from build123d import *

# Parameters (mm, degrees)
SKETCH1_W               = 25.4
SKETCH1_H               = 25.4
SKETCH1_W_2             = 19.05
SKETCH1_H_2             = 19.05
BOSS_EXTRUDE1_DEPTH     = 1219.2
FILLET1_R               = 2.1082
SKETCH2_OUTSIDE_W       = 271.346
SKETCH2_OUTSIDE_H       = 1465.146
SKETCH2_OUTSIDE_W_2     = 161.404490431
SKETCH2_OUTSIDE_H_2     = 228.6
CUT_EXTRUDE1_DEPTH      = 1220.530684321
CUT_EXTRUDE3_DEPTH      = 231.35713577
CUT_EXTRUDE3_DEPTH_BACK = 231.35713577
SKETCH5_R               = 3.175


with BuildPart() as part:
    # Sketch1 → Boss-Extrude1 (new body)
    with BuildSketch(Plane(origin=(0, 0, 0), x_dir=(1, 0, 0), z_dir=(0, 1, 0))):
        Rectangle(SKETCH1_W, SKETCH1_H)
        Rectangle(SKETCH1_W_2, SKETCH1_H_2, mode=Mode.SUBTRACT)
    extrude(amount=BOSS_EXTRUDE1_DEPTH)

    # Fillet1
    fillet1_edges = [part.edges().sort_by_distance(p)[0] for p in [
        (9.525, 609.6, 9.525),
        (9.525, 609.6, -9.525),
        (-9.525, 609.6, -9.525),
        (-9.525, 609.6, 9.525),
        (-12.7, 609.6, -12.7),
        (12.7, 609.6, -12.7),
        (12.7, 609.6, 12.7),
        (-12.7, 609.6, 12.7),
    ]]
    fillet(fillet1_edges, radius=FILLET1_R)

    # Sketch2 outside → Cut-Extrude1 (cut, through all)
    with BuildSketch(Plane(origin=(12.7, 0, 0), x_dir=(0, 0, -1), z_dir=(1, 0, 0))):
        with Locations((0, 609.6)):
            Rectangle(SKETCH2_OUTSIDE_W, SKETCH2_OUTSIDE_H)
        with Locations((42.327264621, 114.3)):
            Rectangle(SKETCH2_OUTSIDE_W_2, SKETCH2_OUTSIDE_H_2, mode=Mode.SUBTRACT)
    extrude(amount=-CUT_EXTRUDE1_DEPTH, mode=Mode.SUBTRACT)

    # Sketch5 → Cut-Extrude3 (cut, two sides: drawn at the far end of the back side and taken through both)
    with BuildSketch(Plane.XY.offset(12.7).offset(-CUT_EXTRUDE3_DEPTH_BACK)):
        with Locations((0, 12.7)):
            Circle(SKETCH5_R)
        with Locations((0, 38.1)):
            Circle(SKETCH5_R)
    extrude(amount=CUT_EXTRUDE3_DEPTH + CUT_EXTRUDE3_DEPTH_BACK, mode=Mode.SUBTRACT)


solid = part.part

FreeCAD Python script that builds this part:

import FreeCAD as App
import Part
import Sketcher
from FreeCAD import Vector
Q = App.Units.Quantity


def edges_at(feature, points):
    """Names of the edges that pass closest to the given points."""
    edges = feature.Shape.Edges
    near = lambda p: min(range(len(edges)), key=lambda i: edges[i].distToShape(Part.Vertex(*p))[0])
    return sorted({f"Edge{near(p) + 1}" for p in points})

doc = App.newDocument("Part")
params = doc.addObject("Spreadsheet::Sheet", "Params")
for row, (alias, value) in enumerate([
    ("sketch1_width", "1 in"),
    ("sketch1_width2", "0.75 in"),
    ("pad1_length", "48 in"),
    ("fillet_radius", "0.083 in"),
    ("sketch2_width", "9 in"),
    ("sketch3_diameter", "0.25 in"),
], start=1):
    params.set(f"A{row}", alias)
    params.set(f"B{row}", "=" + value)
    params.setAlias(f"B{row}", alias)

body = doc.addObject("PartDesign::Body", "Body")

# Sketch on XZ plane
sketch1 = doc.addObject("Sketcher::SketchObject", "Sketch")
body.addObject(sketch1)
sketch1.AttachmentSupport = (doc.XZ_Plane, [""])
sketch1.MapMode = "FlatFace"
sketch1.addGeometry([
    Part.LineSegment(Vector(-13, -13, 0), Vector(-13, 13, 0)),  # 0
    Part.LineSegment(Vector(-13, 13, 0), Vector(13, 13, 0)),  # 1
    Part.LineSegment(Vector(13, 13, 0), Vector(13, -13, 0)),  # 2
    Part.LineSegment(Vector(13, -13, 0), Vector(-13, -13, 0)),  # 3
    Part.LineSegment(Vector(10, 10, 0), Vector(-10, 10, 0)),  # 4
    Part.LineSegment(Vector(-10, 10, 0), Vector(-10, -10, 0)),  # 5
    Part.LineSegment(Vector(-10, -10, 0), Vector(10, -10, 0)),  # 6
    Part.LineSegment(Vector(10, -10, 0), Vector(10, 10, 0)),  # 7
], False)
sketch1.addConstraint([
    Sketcher.Constraint("Coincident", 0, 2, 1, 1),
    Sketcher.Constraint("Coincident", 1, 2, 2, 1),
    Sketcher.Constraint("Coincident", 2, 2, 3, 1),
    Sketcher.Constraint("Coincident", 3, 2, 0, 1),
    Sketcher.Constraint("Coincident", 4, 2, 5, 1),
    Sketcher.Constraint("Coincident", 5, 2, 6, 1),
    Sketcher.Constraint("Coincident", 6, 2, 7, 1),
    Sketcher.Constraint("Coincident", 7, 2, 4, 1),
    Sketcher.Constraint("Vertical", 0),
    Sketcher.Constraint("Horizontal", 1),
    Sketcher.Constraint("Vertical", 2),
    Sketcher.Constraint("Horizontal", 3),
    Sketcher.Constraint("Horizontal", 4),
    Sketcher.Constraint("Vertical", 5),
    Sketcher.Constraint("Horizontal", 6),
    Sketcher.Constraint("Vertical", 7),
    Sketcher.Constraint("Symmetric", 0, 2, 2, 2, -1, 1),
    Sketcher.Constraint("Symmetric", 4, 2, 6, 2, -1, 1),
    Sketcher.Constraint("Equal", 3, 0),
    Sketcher.Constraint("Equal", 6, 5),
    Sketcher.Constraint("DistanceX", 1, 1, 1, 2, Q("1 in")),
    Sketcher.Constraint("DistanceX", 4, 2, 4, 1, Q("0.75 in")),
])
sketch1.setExpression("Constraints[20]", "Params.sketch1_width")
sketch1.setExpression("Constraints[21]", "Params.sketch1_width2")
pad1 = doc.addObject("PartDesign::Pad", "Pad")
body.addObject(pad1)
pad1.Profile = sketch1
pad1.setExpression("Length", "Params.pad1_length")
pad1.Reversed = True
doc.recompute()

fillet = doc.addObject("PartDesign::Fillet", "Fillet")
body.addObject(fillet)
fillet.Base = (pad1, edges_at(pad1, [
    (9.525, 609.6, 9.525),
    (9.525, 609.6, -9.525),
    (-9.525, 609.6, -9.525),
    (-9.525, 609.6, 9.525),
    (-12.7, 609.6, -12.7),
    (12.7, 609.6, -12.7),
    (12.7, 609.6, 12.7),
    (-12.7, 609.6, 12.7),
]))
fillet.setExpression("Radius", "Params.fillet_radius")

# Sketch on YZ plane
sketch2 = doc.addObject("Sketcher::SketchObject", "Sketch001")
body.addObject(sketch2)
sketch2.AttachmentSupport = (doc.YZ_Plane, [""])
sketch2.MapMode = "FlatFace"
sketch2.AttachmentOffset = App.Placement(Vector(0, 0, 0.5 * 25.4), App.Rotation())
sketch2.addGeometry([
    Part.LineSegment(Vector(1342, 136, 0), Vector(-123, 136, 0)),  # 0
    Part.LineSegment(Vector(-123, 136, 0), Vector(-123, -136, 0)),  # 1
    Part.LineSegment(Vector(-123, -136, 0), Vector(1342, -136, 0)),  # 2
    Part.LineSegment(Vector(1342, -136, 0), Vector(1342, 136, 0)),  # 3
    Part.LineSegment(Vector(0, -123, 0), Vector(0, 38, 0)),  # 4
    Part.LineSegment(Vector(0, 38, 0), Vector(229, 38, 0)),  # 5
    Part.LineSegment(Vector(229, 38, 0), Vector(229, -123, 0)),  # 6
    Part.LineSegment(Vector(229, -123, 0), Vector(0, -123, 0)),  # 7
], False)
sketch2.addConstraint([
    Sketcher.Constraint("Coincident", 0, 2, 1, 1),
    Sketcher.Constraint("Coincident", 1, 2, 2, 1),
    Sketcher.Constraint("Coincident", 2, 2, 3, 1),
    Sketcher.Constraint("Coincident", 3, 2, 0, 1),
    Sketcher.Constraint("Coincident", 4, 2, 5, 1),
    Sketcher.Constraint("Coincident", 5, 2, 6, 1),
    Sketcher.Constraint("Coincident", 6, 2, 7, 1),
    Sketcher.Constraint("Coincident", 7, 2, 4, 1),
    Sketcher.Constraint("Horizontal", 0),
    Sketcher.Constraint("Vertical", 1),
    Sketcher.Constraint("Horizontal", 2),
    Sketcher.Constraint("Vertical", 3),
    Sketcher.Constraint("Vertical", 4),
    Sketcher.Constraint("Horizontal", 5),
    Sketcher.Constraint("Vertical", 6),
    Sketcher.Constraint("Horizontal", 7),
    Sketcher.Constraint("PointOnObject", 4, 2, -2),
    Sketcher.Constraint("DistanceX", 5, 1, 5, 2, Q("9 in")),
    Sketcher.Constraint("DistanceX", 0, 2, 0, 1, 1465.146),
    Sketcher.Constraint("DistanceY", 1, 2, 1, 1, 271.346),
    Sketcher.Constraint("DistanceY", 4, 1, 4, 2, 161.40449),
    Sketcher.Constraint("DistanceX", 0, 2, -1, 1, 122.973),
    Sketcher.Constraint("DistanceY", -1, 1, 0, 2, 135.673),
    Sketcher.Constraint("DistanceY", -1, 1, 4, 2, 38.374981),
])
sketch2.setExpression("Constraints[17]", "Params.sketch2_width")
pocket1 = doc.addObject("PartDesign::Pocket", "Pocket")
body.addObject(pocket1)
pocket1.Profile = sketch2
pocket1.Type = "ThroughAll"

# Sketch on XY plane
sketch3 = doc.addObject("Sketcher::SketchObject", "Sketch002")
body.addObject(sketch3)
sketch3.AttachmentSupport = (doc.XY_Plane, [""])
sketch3.MapMode = "FlatFace"
sketch3.AttachmentOffset = App.Placement(Vector(0, 0, 0.5 * 25.4), App.Rotation())
sketch3.addGeometry([
    Part.Circle(Vector(0, 12.7, 0), Vector(0, 0, 1), 3.2),
    Part.Circle(Vector(0, 38.1, 0), Vector(0, 0, 1), 3.2),
], False)
sketch3.addConstraint([
    Sketcher.Constraint("Equal", 0, 1),
    Sketcher.Constraint("PointOnObject", 0, 3, -2),
    Sketcher.Constraint("PointOnObject", 1, 3, -2),
    Sketcher.Constraint("Diameter", 0, Q("0.25 in")),
    Sketcher.Constraint("DistanceY", 0, 3, 1, 3, Q("1 in")),
    Sketcher.Constraint("DistanceY", -1, 1, 0, 3, Q("0.5 in")),
])
sketch3.setExpression("Constraints[3]", "Params.sketch3_diameter")
pocket2 = doc.addObject("PartDesign::Pocket", "Pocket001")
body.addObject(pocket2)
pocket2.Profile = sketch3
pocket2.Type = "ThroughAll"
pocket2.Midplane = True

doc.recompute()
